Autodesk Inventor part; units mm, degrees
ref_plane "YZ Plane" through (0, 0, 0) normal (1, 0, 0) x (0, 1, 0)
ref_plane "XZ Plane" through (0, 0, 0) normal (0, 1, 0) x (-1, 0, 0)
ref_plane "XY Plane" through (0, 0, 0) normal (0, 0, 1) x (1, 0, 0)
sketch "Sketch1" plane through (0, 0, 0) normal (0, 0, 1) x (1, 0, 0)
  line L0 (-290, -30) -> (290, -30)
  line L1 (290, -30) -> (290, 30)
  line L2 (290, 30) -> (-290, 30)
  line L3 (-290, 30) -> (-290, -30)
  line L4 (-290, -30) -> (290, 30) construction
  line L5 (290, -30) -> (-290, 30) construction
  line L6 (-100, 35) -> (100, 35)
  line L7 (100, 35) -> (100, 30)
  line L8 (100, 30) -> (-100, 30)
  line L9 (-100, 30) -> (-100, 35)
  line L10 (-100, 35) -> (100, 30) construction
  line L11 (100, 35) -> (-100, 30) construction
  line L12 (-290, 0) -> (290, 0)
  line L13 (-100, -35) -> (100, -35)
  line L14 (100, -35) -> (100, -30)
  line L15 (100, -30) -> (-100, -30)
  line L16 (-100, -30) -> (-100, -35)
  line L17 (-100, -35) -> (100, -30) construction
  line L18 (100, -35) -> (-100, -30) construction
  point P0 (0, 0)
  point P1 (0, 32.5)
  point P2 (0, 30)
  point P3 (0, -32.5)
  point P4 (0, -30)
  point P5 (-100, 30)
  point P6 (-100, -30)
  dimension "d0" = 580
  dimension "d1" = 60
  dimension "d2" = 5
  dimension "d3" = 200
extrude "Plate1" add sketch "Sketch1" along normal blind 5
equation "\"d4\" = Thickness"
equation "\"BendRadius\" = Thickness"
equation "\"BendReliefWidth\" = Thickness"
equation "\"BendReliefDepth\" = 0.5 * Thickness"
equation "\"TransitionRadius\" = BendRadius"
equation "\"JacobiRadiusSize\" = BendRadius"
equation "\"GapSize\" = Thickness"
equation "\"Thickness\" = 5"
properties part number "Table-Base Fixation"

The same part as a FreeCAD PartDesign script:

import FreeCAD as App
import Part
import Sketcher
from FreeCAD import Vector


def add_polygon(sketch, points):
    """Adds a closed chain of lines whose ends are joined by coincident constraints."""
    first, n = sketch.GeometryCount, len(points)
    for a, b in zip(points, points[1:] + points[:1]):
        sketch.addGeometry(Part.LineSegment(App.Vector(*a, 0), App.Vector(*b, 0)), False)
    for i in range(n):
        sketch.addConstraint(Sketcher.Constraint("Coincident", first + i, 2, first + (i + 1) % n, 1))

doc = App.newDocument("Part")
body = doc.addObject("PartDesign::Body", "Body")

# Sketch on XY plane
sketch1 = body.newObject("Sketcher::SketchObject", "Sketch")
sketch1.AttachmentSupport = (doc.getObject("XY_Plane"), [""])
sketch1.MapMode = "FlatFace"
add_polygon(sketch1, [(-290, -30), (-100, -30), (-100, -35), (100, -35), (100, -30), (290, -30), (290, 30), (100, 30), (100, 35), (-100, 35), (-100, 30), (-290, 30)])  # lines 0-11
sketch1.addConstraint([
    Sketcher.Constraint("Horizontal", 0),
    Sketcher.Constraint("Vertical", 1),
    Sketcher.Constraint("Horizontal", 2),
    Sketcher.Constraint("Vertical", 3),
    Sketcher.Constraint("Horizontal", 4),
    Sketcher.Constraint("Vertical", 5),
    Sketcher.Constraint("Horizontal", 6),
    Sketcher.Constraint("Vertical", 7),
    Sketcher.Constraint("Horizontal", 8),
    Sketcher.Constraint("Vertical", 9),
    Sketcher.Constraint("Horizontal", 10),
    Sketcher.Constraint("Vertical", 11),
    Sketcher.Constraint("Symmetric", 0, 2, 6, 2, -1, 1),
    Sketcher.Constraint("Symmetric", 2, 2, 8, 2, -1, 1),
    Sketcher.Constraint("Symmetric", 4, 2, 10, 2, -1, 1),
    Sketcher.Constraint("Symmetric", 0, 2, 3, 2, -2),
    Sketcher.Constraint("DistanceX", 2, 1, 2, 2, 200.0),
    Sketcher.Constraint("DistanceY", 1, 2, 1, 1, 5.0),
    Sketcher.Constraint("DistanceY", 5, 1, 5, 2, 60.0),
    Sketcher.Constraint("DistanceX", 0, 1, 0, 2, 190.0),
])
pad1 = body.newObject("PartDesign::Pad", "Pad")
pad1.Profile = sketch1
pad1.Length = 5

doc.recompute()
